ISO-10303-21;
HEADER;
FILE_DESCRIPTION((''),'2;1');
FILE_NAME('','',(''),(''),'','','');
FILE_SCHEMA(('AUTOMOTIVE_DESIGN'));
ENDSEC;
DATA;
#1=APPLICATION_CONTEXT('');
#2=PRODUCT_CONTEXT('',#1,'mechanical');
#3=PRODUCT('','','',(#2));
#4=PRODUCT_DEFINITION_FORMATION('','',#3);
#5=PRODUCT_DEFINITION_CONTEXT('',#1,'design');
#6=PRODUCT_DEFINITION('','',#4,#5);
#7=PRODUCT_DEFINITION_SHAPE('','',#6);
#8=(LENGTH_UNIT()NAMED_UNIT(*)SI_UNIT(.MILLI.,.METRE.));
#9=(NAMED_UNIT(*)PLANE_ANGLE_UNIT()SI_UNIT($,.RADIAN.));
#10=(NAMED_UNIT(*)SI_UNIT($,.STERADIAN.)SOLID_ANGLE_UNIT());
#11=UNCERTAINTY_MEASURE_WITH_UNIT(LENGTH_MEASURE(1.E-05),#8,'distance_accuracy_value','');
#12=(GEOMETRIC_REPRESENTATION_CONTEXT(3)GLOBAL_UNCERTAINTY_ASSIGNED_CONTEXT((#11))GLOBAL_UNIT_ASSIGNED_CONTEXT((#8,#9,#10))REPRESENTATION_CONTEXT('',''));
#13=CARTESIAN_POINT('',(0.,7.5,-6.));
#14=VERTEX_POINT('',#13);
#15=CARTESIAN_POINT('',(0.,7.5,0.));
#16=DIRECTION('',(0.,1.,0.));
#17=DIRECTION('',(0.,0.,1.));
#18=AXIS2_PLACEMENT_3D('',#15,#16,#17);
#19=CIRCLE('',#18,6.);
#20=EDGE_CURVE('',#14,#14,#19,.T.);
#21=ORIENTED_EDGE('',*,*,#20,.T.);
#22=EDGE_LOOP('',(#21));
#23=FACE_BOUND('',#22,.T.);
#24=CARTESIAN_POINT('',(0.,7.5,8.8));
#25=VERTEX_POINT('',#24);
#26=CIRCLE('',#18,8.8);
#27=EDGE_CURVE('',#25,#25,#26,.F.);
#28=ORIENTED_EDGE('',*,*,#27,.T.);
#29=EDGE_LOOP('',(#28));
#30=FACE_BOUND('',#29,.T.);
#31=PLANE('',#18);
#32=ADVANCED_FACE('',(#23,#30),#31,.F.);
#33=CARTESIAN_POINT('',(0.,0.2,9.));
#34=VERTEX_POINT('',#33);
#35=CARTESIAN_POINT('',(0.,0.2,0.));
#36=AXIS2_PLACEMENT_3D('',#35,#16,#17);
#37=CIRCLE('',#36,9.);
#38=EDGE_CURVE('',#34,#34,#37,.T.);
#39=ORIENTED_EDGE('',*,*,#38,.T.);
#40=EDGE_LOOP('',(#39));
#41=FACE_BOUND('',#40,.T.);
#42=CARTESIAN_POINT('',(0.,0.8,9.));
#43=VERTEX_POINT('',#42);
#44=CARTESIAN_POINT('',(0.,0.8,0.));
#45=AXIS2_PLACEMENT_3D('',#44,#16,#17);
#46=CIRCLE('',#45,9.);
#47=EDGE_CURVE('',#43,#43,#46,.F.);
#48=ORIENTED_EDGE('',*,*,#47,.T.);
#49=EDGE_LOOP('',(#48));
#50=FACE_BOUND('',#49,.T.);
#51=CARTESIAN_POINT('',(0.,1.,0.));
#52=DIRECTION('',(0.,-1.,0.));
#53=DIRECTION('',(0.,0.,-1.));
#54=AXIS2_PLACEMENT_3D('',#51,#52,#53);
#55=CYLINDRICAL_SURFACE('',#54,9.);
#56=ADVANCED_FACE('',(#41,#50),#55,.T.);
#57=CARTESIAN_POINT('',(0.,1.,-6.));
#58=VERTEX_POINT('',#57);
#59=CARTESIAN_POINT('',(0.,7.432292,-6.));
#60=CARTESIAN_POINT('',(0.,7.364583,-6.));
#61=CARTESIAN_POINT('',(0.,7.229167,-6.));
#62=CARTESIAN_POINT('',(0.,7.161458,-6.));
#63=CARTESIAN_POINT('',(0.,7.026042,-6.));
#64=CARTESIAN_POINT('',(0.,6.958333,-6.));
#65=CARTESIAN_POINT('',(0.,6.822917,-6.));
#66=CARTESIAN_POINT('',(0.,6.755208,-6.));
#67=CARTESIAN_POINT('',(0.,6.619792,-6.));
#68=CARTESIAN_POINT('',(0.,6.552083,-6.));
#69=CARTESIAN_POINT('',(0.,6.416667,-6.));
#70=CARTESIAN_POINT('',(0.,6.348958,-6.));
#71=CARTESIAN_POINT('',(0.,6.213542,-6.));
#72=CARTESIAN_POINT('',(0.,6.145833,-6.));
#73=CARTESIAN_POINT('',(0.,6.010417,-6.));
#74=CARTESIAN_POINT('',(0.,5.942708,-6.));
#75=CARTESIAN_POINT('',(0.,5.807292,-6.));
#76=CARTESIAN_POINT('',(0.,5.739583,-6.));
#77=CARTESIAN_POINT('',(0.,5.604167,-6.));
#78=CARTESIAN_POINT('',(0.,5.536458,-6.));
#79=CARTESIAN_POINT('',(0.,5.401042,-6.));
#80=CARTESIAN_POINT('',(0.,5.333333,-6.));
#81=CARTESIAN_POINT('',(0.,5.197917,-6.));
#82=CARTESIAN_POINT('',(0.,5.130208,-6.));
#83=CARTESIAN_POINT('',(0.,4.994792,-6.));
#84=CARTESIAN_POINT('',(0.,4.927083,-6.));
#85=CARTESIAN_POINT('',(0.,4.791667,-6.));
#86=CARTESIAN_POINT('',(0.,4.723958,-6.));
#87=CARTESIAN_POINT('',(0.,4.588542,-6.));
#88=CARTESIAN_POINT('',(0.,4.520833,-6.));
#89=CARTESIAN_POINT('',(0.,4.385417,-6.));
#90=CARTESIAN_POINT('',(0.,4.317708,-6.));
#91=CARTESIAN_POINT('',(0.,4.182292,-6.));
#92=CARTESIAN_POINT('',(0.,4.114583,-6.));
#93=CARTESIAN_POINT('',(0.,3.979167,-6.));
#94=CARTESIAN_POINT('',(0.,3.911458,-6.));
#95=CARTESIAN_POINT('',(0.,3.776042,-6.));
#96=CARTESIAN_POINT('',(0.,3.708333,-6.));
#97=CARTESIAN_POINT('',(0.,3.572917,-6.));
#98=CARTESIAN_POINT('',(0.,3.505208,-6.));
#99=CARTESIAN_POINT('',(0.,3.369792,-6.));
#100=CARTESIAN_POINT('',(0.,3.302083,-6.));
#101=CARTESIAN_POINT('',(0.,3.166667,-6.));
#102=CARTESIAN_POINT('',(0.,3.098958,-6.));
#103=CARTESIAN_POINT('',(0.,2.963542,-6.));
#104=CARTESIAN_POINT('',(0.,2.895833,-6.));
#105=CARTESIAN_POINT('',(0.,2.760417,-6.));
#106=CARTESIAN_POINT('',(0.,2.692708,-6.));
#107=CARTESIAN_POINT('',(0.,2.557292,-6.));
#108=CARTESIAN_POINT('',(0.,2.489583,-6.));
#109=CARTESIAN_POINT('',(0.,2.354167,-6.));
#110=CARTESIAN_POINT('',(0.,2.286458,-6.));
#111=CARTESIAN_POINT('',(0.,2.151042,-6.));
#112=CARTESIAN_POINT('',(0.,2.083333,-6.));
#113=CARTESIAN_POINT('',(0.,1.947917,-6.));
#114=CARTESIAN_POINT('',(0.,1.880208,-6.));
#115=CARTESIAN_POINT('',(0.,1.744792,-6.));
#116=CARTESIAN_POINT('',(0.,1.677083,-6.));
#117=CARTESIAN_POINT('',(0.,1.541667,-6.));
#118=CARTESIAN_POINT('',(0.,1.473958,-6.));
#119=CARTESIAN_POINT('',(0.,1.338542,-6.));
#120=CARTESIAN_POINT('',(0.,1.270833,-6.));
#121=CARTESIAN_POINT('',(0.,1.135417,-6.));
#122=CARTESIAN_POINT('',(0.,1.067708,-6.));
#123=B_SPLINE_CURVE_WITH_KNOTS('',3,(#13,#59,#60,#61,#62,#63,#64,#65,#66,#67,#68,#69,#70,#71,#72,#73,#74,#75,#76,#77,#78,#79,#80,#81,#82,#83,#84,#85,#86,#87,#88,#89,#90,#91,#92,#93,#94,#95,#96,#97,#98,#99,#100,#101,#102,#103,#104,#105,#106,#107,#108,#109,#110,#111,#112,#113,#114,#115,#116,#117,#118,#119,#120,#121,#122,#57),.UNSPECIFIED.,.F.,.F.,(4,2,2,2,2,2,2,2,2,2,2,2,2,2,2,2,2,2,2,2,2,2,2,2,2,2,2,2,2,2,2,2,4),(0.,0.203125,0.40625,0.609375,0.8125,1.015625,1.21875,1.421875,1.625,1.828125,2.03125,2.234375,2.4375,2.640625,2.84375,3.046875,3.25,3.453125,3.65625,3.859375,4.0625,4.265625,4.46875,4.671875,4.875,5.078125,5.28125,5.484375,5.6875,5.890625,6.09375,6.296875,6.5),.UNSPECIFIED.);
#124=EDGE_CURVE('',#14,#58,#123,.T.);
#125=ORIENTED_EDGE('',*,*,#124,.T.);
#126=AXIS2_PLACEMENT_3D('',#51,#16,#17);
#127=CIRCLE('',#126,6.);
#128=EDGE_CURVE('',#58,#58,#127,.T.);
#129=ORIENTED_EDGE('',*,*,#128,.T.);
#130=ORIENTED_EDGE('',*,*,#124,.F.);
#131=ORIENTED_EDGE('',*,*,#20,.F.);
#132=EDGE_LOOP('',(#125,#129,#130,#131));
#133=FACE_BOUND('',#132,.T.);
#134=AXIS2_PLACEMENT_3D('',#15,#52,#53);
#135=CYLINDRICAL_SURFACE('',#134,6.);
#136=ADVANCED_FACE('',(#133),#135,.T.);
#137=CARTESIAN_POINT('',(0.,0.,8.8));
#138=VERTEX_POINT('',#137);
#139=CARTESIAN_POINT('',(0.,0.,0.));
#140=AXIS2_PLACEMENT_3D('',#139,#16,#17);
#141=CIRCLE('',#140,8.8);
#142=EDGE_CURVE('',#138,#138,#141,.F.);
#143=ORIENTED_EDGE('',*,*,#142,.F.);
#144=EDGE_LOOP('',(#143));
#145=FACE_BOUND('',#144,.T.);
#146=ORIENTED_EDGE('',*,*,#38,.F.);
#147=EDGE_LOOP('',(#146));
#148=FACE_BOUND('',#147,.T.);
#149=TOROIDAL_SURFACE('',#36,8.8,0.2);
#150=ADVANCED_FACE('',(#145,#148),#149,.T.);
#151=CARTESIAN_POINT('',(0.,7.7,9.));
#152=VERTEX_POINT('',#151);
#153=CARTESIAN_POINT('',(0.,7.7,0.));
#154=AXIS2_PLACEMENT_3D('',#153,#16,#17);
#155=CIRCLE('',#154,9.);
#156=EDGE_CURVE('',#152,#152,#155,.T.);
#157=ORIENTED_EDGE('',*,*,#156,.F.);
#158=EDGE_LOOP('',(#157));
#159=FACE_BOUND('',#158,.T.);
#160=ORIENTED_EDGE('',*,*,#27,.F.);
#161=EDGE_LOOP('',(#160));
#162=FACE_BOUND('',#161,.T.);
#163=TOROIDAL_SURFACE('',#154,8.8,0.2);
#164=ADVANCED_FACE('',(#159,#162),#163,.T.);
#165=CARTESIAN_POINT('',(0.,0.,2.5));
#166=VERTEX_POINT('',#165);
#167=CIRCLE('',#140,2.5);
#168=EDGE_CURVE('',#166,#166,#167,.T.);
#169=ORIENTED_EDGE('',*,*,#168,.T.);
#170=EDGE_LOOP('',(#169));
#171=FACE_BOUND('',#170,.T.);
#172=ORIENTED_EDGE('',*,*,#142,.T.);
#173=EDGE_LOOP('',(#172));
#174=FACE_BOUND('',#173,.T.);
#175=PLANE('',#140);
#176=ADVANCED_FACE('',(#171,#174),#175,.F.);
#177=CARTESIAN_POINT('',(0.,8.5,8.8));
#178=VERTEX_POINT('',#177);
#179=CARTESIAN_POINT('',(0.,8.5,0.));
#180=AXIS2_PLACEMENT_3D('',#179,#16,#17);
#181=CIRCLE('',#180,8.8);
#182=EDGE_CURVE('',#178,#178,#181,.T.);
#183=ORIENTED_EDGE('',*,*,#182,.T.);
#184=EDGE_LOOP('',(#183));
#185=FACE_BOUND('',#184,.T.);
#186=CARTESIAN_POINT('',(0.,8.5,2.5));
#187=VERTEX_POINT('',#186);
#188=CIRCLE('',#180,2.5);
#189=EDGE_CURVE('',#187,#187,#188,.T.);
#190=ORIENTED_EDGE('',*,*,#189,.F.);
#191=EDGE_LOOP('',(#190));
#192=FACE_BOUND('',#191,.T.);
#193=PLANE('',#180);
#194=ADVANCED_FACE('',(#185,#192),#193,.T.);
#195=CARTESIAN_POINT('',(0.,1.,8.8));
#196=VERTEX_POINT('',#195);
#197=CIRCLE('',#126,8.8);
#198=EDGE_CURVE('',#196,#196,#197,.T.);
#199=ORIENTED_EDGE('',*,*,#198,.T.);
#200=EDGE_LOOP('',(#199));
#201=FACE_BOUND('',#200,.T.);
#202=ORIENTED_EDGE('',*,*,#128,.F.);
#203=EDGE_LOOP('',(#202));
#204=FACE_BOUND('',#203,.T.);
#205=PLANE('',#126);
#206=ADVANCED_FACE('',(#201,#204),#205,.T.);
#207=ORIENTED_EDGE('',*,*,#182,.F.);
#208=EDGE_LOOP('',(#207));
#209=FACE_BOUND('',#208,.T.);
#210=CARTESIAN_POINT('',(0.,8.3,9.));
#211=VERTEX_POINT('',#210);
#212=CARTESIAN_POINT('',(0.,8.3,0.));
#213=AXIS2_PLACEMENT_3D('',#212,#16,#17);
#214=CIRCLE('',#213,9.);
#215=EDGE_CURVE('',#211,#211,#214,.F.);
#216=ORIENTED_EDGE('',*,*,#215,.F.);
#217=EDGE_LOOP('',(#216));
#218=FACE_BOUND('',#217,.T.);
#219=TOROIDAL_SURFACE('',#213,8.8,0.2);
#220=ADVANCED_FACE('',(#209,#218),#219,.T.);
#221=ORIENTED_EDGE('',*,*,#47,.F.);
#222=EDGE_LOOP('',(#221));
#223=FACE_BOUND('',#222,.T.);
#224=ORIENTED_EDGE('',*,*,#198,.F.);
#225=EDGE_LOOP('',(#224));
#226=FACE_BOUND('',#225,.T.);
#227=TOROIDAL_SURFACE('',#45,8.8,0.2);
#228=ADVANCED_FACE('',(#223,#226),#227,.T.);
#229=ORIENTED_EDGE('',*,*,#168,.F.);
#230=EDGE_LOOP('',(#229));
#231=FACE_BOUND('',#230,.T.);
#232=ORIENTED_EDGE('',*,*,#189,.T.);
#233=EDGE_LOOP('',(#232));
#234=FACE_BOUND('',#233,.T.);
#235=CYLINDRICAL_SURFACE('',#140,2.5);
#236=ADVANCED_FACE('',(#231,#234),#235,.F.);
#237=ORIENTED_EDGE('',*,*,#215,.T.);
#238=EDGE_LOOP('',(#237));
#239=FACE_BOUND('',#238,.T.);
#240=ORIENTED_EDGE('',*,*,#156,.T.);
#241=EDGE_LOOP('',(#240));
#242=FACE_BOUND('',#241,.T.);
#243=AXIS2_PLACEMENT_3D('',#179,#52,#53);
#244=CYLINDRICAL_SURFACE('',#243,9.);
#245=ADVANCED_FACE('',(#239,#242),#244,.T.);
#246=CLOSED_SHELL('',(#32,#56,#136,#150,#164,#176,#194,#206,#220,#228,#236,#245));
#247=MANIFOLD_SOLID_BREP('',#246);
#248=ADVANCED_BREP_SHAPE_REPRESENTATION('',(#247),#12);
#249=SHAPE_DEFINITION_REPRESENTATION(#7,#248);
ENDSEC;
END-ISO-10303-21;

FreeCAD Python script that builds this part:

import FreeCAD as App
import Part
import Sketcher

V = App.Vector
Q = App.Units.Quantity


def edges_at(feature, points):
    """Names of the edges that pass closest to the given points."""
    edges = feature.Shape.Edges
    near = lambda p: min(range(len(edges)), key=lambda i: edges[i].distToShape(Part.Vertex(*p))[0])
    return sorted({f"Edge{near(p) + 1}" for p in points})

doc = App.newDocument("Part")
params = doc.addObject("Spreadsheet::Sheet", "Params")
for row, (alias, value) in enumerate([
    ("sketch1_diameter", "18 mm"),
    ("pad1_length", "1 mm"),
    ("sketch2_diameter", "12 mm"),
    ("pad2_length", "6.5 mm"),
    ("sketch3_diameter", "18 mm"),
    ("pad3_length", "1 mm"),
    ("sketch4_diameter", "5 mm"),
    ("fillet_radius", "0.2 mm"),
], start=1):
    params.set(f"A{row}", alias)
    params.set(f"B{row}", "=" + value)
    params.setAlias(f"B{row}", alias)

body = doc.addObject("PartDesign::Body", "Body")

sketch1 = doc.addObject("Sketcher::SketchObject", "Sketch")
body.addObject(sketch1)
sketch1.AttachmentSupport = (doc.XZ_Plane, [""])
sketch1.MapMode = "FlatFace"
sketch1.addGeometry(Part.Circle(V(0, 0, 0), V(0, 0, 1), 9), False)
sketch1.addConstraint(Sketcher.Constraint("Coincident", 0, 3, -1, 1))
sketch1.addConstraint(Sketcher.Constraint("Diameter", 0, Q("18 mm")))
sketch1.setExpression("Constraints[1]", "Params.sketch1_diameter")
pad1 = doc.addObject("PartDesign::Pad", "Pad")
body.addObject(pad1)
pad1.Profile = sketch1
pad1.setExpression("Length", "Params.pad1_length")
pad1.Reversed = True

sketch2 = doc.addObject("Sketcher::SketchObject", "Sketch001")
body.addObject(sketch2)
sketch2.AttachmentSupport = (doc.XZ_Plane, [""])
sketch2.MapMode = "FlatFace"
sketch2.AttachmentOffset = App.Placement(V(0, 0, -1), App.Rotation())
sketch2.addGeometry(Part.Circle(V(0, 0, 0), V(0, 0, 1), 6), False)
sketch2.addConstraint(Sketcher.Constraint("Coincident", 0, 3, -1, 1))
sketch2.addConstraint(Sketcher.Constraint("Diameter", 0, Q("12 mm")))
sketch2.setExpression("Constraints[1]", "Params.sketch2_diameter")
pad2 = doc.addObject("PartDesign::Pad", "Pad001")
body.addObject(pad2)
pad2.Profile = sketch2
pad2.setExpression("Length", "Params.pad2_length")
pad2.Reversed = True

sketch3 = doc.addObject("Sketcher::SketchObject", "Sketch002")
body.addObject(sketch3)
sketch3.AttachmentSupport = (doc.XZ_Plane, [""])
sketch3.MapMode = "FlatFace"
sketch3.AttachmentOffset = App.Placement(V(0, 0, -7.5), App.Rotation())
sketch3.addGeometry(Part.Circle(V(0, 0, 0), V(0, 0, 1), 9), False)
sketch3.addConstraint(Sketcher.Constraint("Coincident", 0, 3, -1, 1))
sketch3.addConstraint(Sketcher.Constraint("Diameter", 0, Q("18 mm")))
sketch3.setExpression("Constraints[1]", "Params.sketch3_diameter")
pad3 = doc.addObject("PartDesign::Pad", "Pad002")
body.addObject(pad3)
pad3.Profile = sketch3
pad3.setExpression("Length", "Params.pad3_length")
pad3.Reversed = True

sketch4 = doc.addObject("Sketcher::SketchObject", "Sketch003")
body.addObject(sketch4)
sketch4.AttachmentSupport = (doc.XZ_Plane, [""])
sketch4.MapMode = "FlatFace"
sketch4.AttachmentOffset = App.Placement(V(0, 0, -8.5), App.Rotation())
sketch4.addGeometry(Part.Circle(V(0, 0, 0), V(0, 0, 1), 2.5), False)
sketch4.addConstraint(Sketcher.Constraint("Coincident", 0, 3, -1, 1))
sketch4.addConstraint(Sketcher.Constraint("Diameter", 0, Q("5 mm")))
sketch4.setExpression("Constraints[1]", "Params.sketch4_diameter")
pocket1 = doc.addObject("PartDesign::Pocket", "Pocket")
body.addObject(pocket1)
pocket1.Profile = sketch4
pocket1.Type = "ThroughAll"
pocket1.Reversed = True
doc.recompute()

fillet = doc.addObject("PartDesign::Fillet", "Fillet")
body.addObject(fillet)
fillet.Base = (pocket1, edges_at(pocket1, [
    (0, 8.5, -9),
    (0, 0, -9),
    (0, 1, -9),
    (0, 7.5, -9),
]))
fillet.setExpression("Radius", "Params.fillet_radius")

doc.recompute()
